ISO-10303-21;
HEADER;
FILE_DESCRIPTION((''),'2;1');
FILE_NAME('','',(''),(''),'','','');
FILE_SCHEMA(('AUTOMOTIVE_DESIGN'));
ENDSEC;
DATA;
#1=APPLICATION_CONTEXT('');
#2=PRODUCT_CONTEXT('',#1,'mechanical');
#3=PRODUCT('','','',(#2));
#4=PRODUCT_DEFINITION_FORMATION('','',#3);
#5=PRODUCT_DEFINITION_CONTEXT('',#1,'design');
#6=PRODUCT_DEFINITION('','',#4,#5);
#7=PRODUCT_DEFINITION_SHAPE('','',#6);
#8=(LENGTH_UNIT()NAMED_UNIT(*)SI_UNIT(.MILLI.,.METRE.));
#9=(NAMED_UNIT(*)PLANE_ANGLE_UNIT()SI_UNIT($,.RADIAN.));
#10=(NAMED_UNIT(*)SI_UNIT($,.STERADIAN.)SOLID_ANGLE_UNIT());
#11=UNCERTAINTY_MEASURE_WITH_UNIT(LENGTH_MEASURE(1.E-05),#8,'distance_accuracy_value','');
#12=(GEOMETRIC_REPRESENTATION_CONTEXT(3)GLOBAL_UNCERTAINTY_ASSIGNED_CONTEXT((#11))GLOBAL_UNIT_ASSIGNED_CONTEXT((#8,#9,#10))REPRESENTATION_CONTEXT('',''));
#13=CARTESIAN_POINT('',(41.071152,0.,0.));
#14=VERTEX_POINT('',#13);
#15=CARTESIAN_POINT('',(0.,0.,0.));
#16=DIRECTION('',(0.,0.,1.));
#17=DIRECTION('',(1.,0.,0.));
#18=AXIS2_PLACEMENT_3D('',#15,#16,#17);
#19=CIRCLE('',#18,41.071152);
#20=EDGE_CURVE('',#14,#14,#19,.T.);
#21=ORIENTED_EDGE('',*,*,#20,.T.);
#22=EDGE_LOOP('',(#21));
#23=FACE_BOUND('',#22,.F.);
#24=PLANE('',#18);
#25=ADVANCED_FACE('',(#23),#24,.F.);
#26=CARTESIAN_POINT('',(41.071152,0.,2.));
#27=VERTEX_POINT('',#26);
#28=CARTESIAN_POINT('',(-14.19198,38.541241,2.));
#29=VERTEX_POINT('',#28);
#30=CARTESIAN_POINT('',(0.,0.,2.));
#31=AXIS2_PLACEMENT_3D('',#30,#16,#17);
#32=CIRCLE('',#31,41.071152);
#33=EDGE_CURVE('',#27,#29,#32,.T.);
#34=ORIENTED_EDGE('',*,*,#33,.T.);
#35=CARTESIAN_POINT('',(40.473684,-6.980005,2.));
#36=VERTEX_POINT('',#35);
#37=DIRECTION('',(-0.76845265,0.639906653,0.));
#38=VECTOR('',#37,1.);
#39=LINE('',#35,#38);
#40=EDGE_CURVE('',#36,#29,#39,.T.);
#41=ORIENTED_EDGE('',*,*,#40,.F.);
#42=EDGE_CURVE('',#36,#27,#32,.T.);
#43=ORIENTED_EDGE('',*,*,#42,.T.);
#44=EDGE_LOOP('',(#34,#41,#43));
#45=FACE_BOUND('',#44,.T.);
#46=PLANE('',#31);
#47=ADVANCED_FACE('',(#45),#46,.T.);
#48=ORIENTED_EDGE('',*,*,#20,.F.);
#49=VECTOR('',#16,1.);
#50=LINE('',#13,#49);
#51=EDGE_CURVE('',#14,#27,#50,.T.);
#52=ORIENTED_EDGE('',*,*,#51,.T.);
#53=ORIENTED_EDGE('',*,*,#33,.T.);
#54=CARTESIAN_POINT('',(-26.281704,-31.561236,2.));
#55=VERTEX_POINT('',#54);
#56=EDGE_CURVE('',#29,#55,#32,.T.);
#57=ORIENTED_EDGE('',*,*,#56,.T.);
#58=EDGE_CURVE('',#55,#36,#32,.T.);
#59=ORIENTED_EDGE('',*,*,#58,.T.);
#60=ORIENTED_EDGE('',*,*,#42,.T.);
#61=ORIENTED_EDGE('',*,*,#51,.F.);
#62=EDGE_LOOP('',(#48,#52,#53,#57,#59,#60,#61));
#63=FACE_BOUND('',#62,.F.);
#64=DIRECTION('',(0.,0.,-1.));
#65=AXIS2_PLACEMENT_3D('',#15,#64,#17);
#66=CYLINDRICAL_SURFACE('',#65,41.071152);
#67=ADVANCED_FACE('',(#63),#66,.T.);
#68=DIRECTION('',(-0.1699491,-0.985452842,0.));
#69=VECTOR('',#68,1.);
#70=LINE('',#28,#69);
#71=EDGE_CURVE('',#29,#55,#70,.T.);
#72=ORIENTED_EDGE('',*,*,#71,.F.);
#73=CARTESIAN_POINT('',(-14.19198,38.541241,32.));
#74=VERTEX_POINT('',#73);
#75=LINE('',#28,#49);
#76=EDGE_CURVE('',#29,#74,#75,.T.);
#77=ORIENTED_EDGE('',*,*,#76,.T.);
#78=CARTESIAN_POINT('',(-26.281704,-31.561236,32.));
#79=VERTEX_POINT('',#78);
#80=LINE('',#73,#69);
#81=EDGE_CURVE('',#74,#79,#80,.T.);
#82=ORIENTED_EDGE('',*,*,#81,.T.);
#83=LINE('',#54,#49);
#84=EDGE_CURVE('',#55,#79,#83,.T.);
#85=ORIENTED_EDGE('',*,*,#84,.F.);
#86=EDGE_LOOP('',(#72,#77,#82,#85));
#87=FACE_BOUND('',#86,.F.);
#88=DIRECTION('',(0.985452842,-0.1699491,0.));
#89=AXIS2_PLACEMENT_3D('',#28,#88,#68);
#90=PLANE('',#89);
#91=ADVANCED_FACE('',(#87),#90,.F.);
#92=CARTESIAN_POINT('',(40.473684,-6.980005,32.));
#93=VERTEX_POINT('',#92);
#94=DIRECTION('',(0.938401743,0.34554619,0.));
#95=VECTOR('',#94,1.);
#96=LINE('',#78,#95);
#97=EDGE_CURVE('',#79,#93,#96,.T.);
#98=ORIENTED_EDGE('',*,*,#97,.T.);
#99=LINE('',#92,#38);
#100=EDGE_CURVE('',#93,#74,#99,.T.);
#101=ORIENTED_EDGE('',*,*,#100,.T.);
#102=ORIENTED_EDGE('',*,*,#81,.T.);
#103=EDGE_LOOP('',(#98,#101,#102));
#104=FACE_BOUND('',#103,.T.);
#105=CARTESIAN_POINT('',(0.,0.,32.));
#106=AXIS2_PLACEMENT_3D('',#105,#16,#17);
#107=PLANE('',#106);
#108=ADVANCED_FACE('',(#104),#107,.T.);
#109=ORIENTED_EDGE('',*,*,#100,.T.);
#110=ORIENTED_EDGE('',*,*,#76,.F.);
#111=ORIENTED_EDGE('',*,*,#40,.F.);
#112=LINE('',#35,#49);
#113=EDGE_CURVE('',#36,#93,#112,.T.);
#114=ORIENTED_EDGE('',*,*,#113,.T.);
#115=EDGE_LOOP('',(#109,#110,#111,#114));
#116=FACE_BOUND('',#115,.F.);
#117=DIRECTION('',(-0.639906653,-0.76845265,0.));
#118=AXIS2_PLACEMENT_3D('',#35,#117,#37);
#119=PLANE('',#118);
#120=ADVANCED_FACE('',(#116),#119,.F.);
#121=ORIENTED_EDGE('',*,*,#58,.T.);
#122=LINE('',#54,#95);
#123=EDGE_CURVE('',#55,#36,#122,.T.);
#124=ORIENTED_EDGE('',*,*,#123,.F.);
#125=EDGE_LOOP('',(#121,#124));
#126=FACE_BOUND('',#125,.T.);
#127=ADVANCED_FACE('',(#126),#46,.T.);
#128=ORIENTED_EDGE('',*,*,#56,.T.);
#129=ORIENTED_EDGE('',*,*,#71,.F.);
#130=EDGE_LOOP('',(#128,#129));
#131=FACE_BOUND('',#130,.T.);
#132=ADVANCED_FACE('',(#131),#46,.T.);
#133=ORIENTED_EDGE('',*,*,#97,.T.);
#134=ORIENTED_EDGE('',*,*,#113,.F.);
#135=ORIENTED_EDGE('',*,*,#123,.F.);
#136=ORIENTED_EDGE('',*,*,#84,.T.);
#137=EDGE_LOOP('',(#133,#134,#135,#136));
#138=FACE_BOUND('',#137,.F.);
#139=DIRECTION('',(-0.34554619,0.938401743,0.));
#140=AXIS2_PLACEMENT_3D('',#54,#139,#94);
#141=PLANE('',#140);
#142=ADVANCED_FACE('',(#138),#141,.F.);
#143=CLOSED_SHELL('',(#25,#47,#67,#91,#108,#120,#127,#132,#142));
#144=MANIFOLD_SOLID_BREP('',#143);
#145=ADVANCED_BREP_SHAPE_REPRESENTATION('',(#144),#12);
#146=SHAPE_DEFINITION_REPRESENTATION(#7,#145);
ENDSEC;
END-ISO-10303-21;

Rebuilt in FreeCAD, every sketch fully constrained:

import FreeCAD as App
import Part
import Sketcher

V = App.Vector
Q = App.Units.Quantity

doc = App.newDocument("Part")
body = doc.addObject("PartDesign::Body", "Body")

# Sketch on XY plane
sketch1 = body.newObject("Sketcher::SketchObject", "Sketch")
sketch1.AttachmentSupport = (doc.getObject("XY_Plane"), [""])
sketch1.MapMode = "FlatFace"
sketch1.addGeometry(Part.Circle(V(0, 0, 0), V(0, 0, 1), 41.071152), False)
sketch1.addConstraint(Sketcher.Constraint("Coincident", 0, 3, -1, 1))
sketch1.addConstraint(Sketcher.Constraint("Diameter", 0, Q("82.142304 mm")))
pad1 = body.newObject("PartDesign::Pad", "Pad")
pad1.Profile = sketch1
pad1.Length = 2

# Sketch on XY plane
sketch2 = body.newObject("Sketcher::SketchObject", "Sketch001")
sketch2.AttachmentSupport = (doc.getObject("XY_Plane"), [""])
sketch2.MapMode = "FlatFace"
sketch2.AttachmentOffset = App.Placement(V(0, 0, 2), App.Rotation())
sketch2.addGeometry(Part.LineSegment(V(40.473684, -6.980005, 0), V(-14.19198, 38.541241, 0)), False)
sketch2.addGeometry(Part.LineSegment(V(-14.19198, 38.541241, 0), V(-26.281704, -31.561236, 0)), False)
sketch2.addGeometry(Part.LineSegment(V(-26.281704, -31.561236, 0), V(40.473684, -6.980005, 0)), False)
sketch2.addConstraint(Sketcher.Constraint("Coincident", 0, 2, 1, 1))
sketch2.addConstraint(Sketcher.Constraint("Coincident", 1, 2, 2, 1))
sketch2.addConstraint(Sketcher.Constraint("Coincident", 2, 2, 0, 1))
sketch2.addConstraint(Sketcher.Constraint("Equal", 0, 1))
sketch2.addConstraint(Sketcher.Constraint("Equal", 1, 2))
sketch2.addConstraint(Sketcher.Constraint("DistanceX", 0, 2, -1, 1, Q("14.19198 mm")))
sketch2.addConstraint(Sketcher.Constraint("DistanceY", -1, 1, 0, 2, Q("38.541241 mm")))
sketch2.addConstraint(Sketcher.Constraint("DistanceY", 1, 2, 2, 2, Q("24.581231 mm")))
sketch2.addConstraint(Sketcher.Constraint("Distance", 0, Q("71.137323 mm")))
pad2 = body.newObject("PartDesign::Pad", "Pad001")
pad2.Profile = sketch2
pad2.Length = 30

doc.recompute()
